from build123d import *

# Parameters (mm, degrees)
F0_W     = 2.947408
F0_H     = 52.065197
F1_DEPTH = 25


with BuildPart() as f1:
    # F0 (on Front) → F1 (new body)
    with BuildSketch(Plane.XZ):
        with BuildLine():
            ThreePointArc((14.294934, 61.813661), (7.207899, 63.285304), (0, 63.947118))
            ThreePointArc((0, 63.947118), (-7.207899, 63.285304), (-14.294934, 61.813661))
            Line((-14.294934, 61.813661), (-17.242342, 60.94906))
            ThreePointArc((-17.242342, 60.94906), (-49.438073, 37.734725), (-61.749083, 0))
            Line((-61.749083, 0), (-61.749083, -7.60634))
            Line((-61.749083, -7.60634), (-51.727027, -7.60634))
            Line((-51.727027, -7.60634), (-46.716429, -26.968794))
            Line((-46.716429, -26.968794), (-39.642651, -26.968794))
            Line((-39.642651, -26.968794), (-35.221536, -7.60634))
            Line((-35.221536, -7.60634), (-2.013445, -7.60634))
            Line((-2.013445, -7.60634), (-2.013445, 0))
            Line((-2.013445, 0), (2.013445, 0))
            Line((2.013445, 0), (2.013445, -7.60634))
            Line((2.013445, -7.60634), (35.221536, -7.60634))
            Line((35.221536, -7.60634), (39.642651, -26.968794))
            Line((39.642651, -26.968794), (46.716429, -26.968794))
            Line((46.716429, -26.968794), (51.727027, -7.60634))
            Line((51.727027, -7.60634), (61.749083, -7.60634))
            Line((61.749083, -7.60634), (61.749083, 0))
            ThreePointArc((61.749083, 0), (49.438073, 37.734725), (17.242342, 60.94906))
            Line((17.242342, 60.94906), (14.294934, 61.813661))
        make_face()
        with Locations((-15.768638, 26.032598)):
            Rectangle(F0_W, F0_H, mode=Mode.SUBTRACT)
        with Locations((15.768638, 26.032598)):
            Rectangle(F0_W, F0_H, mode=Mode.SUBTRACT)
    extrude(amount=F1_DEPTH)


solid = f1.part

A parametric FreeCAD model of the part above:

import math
import FreeCAD as App
import Part
import Sketcher

V = App.Vector

doc = App.newDocument("Part")
params = doc.addObject("Spreadsheet::Sheet", "Params")
for row, (alias, value) in enumerate([
    ("pad1_length", "25 mm"),
], start=1):
    params.set(f"A{row}", alias)
    params.set(f"B{row}", "=" + value)
    params.setAlias(f"B{row}", alias)

body = doc.addObject("PartDesign::Body", "Body")

# Sketch on XZ plane
sketch1 = doc.addObject("Sketcher::SketchObject", "Sketch")
body.addObject(sketch1)
sketch1.AttachmentSupport = (doc.XZ_Plane, [""])
sketch1.MapMode = "FlatFace"
sketch1.addGeometry([
    Part.ArcOfCircle(Part.Circle(V(-2.2, 0, 0), V(0, 0, 1), 64), math.radians(75.03), math.radians(88)),  # 0
    Part.ArcOfCircle(Part.Circle(V(2.2, 0, 0), V(0, 0, 1), 64), math.radians(92), math.radians(104.97)),  # 1
    Part.LineSegment(V(-14.3, 61.8, 0), V(-17.2, 60.9, 0)),  # 2
    Part.ArcOfCircle(Part.Circle(V(2.2, 0, 0), V(0, 0, 1), 64), math.radians(108), math.radians(180)),  # 3
    Part.LineSegment(V(-61.7, 0, 0), V(-61.7, -7.6, 0)),  # 4
    Part.LineSegment(V(-61.7, -7.6, 0), V(-51.7, -7.6, 0)),  # 5
    Part.LineSegment(V(-51.7, -7.6, 0), V(-46.7, -27, 0)),  # 6
    Part.LineSegment(V(-46.7, -27, 0), V(-39.6, -27, 0)),  # 7
    Part.LineSegment(V(-39.6, -27, 0), V(-35.2, -7.6, 0)),  # 8
    Part.LineSegment(V(-35.2, -7.6, 0), V(-2, -7.6, 0)),  # 9
    Part.LineSegment(V(-2, -7.6, 0), V(-2, 0, 0)),  # 10
    Part.LineSegment(V(-2, 0, 0), V(2, 0, 0)),  # 11
    Part.LineSegment(V(2, 0, 0), V(2, -7.6, 0)),  # 12
    Part.LineSegment(V(2, -7.6, 0), V(35.2, -7.6, 0)),  # 13
    Part.LineSegment(V(35.2, -7.6, 0), V(39.6, -27, 0)),  # 14
    Part.LineSegment(V(39.6, -27, 0), V(46.7, -27, 0)),  # 15
    Part.LineSegment(V(46.7, -27, 0), V(51.7, -7.6, 0)),  # 16
    Part.LineSegment(V(51.7, -7.6, 0), V(61.7, -7.6, 0)),  # 17
    Part.LineSegment(V(61.7, -7.6, 0), V(61.7, 0, 0)),  # 18
    Part.ArcOfCircle(Part.Circle(V(-2.2, 0, 0), V(0, 0, 1), 64), math.radians(0), math.radians(72)),  # 19
    Part.LineSegment(V(17.2, 60.9, 0), V(14.3, 61.8, 0)),  # 20
    Part.LineSegment(V(-14.3, 0, 0), V(-17.2, 0, 0)),  # 21
    Part.LineSegment(V(-17.2, 0, 0), V(-17.2, 52.1, 0)),  # 22
    Part.LineSegment(V(-17.2, 52.1, 0), V(-14.3, 52.1, 0)),  # 23
    Part.LineSegment(V(-14.3, 52.1, 0), V(-14.3, 0, 0)),  # 24
    Part.LineSegment(V(17.2, 0, 0), V(14.3, 0, 0)),  # 25
    Part.LineSegment(V(14.3, 0, 0), V(14.3, 52.1, 0)),  # 26
    Part.LineSegment(V(14.3, 52.1, 0), V(17.2, 52.1, 0)),  # 27
    Part.LineSegment(V(17.2, 52.1, 0), V(17.2, 0, 0)),  # 28
], False)
sketch1.addConstraint([
    Sketcher.Constraint("Coincident", 0, 2, 1, 1),
    Sketcher.Constraint("Coincident", 1, 2, 2, 1),
    Sketcher.Constraint("Coincident", 2, 2, 3, 1),
    Sketcher.Constraint("Tangent", 3, 2, 4, 1),
    Sketcher.Constraint("Coincident", 4, 2, 5, 1),
    Sketcher.Constraint("Coincident", 5, 2, 6, 1),
    Sketcher.Constraint("Coincident", 6, 2, 7, 1),
    Sketcher.Constraint("Coincident", 7, 2, 8, 1),
    Sketcher.Constraint("Coincident", 8, 2, 9, 1),
    Sketcher.Constraint("Coincident", 9, 2, 10, 1),
    Sketcher.Constraint("Coincident", 10, 2, 11, 1),
    Sketcher.Constraint("Coincident", 11, 2, 12, 1),
    Sketcher.Constraint("Coincident", 12, 2, 13, 1),
    Sketcher.Constraint("Coincident", 13, 2, 14, 1),
    Sketcher.Constraint("Coincident", 14, 2, 15, 1),
    Sketcher.Constraint("Coincident", 15, 2, 16, 1),
    Sketcher.Constraint("Coincident", 16, 2, 17, 1),
    Sketcher.Constraint("Coincident", 17, 2, 18, 1),
    Sketcher.Constraint("Tangent", 18, 2, 19, 1),
    Sketcher.Constraint("Coincident", 19, 2, 20, 1),
    Sketcher.Constraint("Coincident", 20, 2, 0, 1),
    Sketcher.Constraint("Coincident", 21, 2, 22, 1),
    Sketcher.Constraint("Coincident", 22, 2, 23, 1),
    Sketcher.Constraint("Coincident", 23, 2, 24, 1),
    Sketcher.Constraint("Coincident", 24, 2, 21, 1),
    Sketcher.Constraint("Coincident", 25, 2, 26, 1),
    Sketcher.Constraint("Coincident", 26, 2, 27, 1),
    Sketcher.Constraint("Coincident", 27, 2, 28, 1),
    Sketcher.Constraint("Coincident", 28, 2, 25, 1),
    Sketcher.Constraint("Vertical", 4),
    Sketcher.Constraint("Horizontal", 5),
    Sketcher.Constraint("Horizontal", 7),
    Sketcher.Constraint("Horizontal", 9),
    Sketcher.Constraint("Vertical", 10),
    Sketcher.Constraint("Horizontal", 11),
    Sketcher.Constraint("Vertical", 12),
    Sketcher.Constraint("Horizontal", 13),
    Sketcher.Constraint("Horizontal", 15),
    Sketcher.Constraint("Horizontal", 17),
    Sketcher.Constraint("Vertical", 18),
    Sketcher.Constraint("Horizontal", 21),
    Sketcher.Constraint("Vertical", 22),
    Sketcher.Constraint("Horizontal", 23),
    Sketcher.Constraint("Vertical", 24),
    Sketcher.Constraint("Horizontal", 25),
    Sketcher.Constraint("Vertical", 26),
    Sketcher.Constraint("Horizontal", 27),
    Sketcher.Constraint("Vertical", 28),
    Sketcher.Constraint("Equal", 0, 1),
    Sketcher.Constraint("Equal", 3, 19),
    Sketcher.Constraint("Symmetric", 3, 3, 19, 3, -1, 1),
    Sketcher.Constraint("Symmetric", 10, 2, 11, 2, -1, 1),
    Sketcher.Constraint("Symmetric", 24, 2, 25, 2, -1, 1),
    Sketcher.Constraint("Symmetric", 0, 3, 1, 3, -2),
    Sketcher.Constraint("Symmetric", 8, 2, 13, 2, -2),
    Sketcher.Constraint("Symmetric", 7, 2, 14, 2, -2),
    Sketcher.Constraint("Symmetric", 5, 2, 16, 2, -2),
    Sketcher.Constraint("Symmetric", 2, 2, 19, 2, -2),
    Sketcher.Constraint("Symmetric", 22, 2, 27, 2, -2),
    Sketcher.Constraint("PointOnObject", 21, 2, -1),
    Sketcher.Constraint("Horizontal", 5, 2, 8, 2),
    Sketcher.Constraint("Horizontal", 1, 2, 20, 2),
    Sketcher.Constraint("Vertical", 2, 2, 21, 2),
    Sketcher.Constraint("Vertical", 1, 2, 23, 2),
    Sketcher.Constraint("Equal", 7, 15),
    Sketcher.Constraint("Radius", 0, 63.986191),
    Sketcher.Constraint("Radius", 3, 63.986239),
    Sketcher.Constraint("DistanceX", 9, 1, 9, 2, 33.208091),
    Sketcher.Constraint("DistanceX", 11, 1, 11, 2, 4.02689),
    Sketcher.Constraint("DistanceX", 21, 2, 21, 1, 2.947408),
    Sketcher.Constraint("DistanceY", 4, 2, 4, 1, 7.60634),
    Sketcher.Constraint("DistanceY", 2, 2, 1, 2, 0.864601),
    Sketcher.Constraint("DistanceX", 5, 2, 6, 2, 5.010598),
    Sketcher.Constraint("DistanceX", 9, 2, 3, 3, 4.250601),
    Sketcher.Constraint("DistanceX", 1, 3, 14, 2, 37.405499),
    Sketcher.Constraint("DistanceX", 5, 1, 5, 2, 10.022056),
    Sketcher.Constraint("DistanceX", 7, 1, 7, 2, 7.073778),
    Sketcher.Constraint("DistanceY", 22, 1, 22, 2, 52.065197),
    Sketcher.Constraint("DistanceY", -1, 1, 0, 2, 63.947118),
    Sketcher.Constraint("Distance", 6, 20.000268),
])
pad1 = doc.addObject("PartDesign::Pad", "Pad")
body.addObject(pad1)
pad1.Profile = sketch1
pad1.setExpression("Length", "Params.pad1_length")

doc.recompute()
